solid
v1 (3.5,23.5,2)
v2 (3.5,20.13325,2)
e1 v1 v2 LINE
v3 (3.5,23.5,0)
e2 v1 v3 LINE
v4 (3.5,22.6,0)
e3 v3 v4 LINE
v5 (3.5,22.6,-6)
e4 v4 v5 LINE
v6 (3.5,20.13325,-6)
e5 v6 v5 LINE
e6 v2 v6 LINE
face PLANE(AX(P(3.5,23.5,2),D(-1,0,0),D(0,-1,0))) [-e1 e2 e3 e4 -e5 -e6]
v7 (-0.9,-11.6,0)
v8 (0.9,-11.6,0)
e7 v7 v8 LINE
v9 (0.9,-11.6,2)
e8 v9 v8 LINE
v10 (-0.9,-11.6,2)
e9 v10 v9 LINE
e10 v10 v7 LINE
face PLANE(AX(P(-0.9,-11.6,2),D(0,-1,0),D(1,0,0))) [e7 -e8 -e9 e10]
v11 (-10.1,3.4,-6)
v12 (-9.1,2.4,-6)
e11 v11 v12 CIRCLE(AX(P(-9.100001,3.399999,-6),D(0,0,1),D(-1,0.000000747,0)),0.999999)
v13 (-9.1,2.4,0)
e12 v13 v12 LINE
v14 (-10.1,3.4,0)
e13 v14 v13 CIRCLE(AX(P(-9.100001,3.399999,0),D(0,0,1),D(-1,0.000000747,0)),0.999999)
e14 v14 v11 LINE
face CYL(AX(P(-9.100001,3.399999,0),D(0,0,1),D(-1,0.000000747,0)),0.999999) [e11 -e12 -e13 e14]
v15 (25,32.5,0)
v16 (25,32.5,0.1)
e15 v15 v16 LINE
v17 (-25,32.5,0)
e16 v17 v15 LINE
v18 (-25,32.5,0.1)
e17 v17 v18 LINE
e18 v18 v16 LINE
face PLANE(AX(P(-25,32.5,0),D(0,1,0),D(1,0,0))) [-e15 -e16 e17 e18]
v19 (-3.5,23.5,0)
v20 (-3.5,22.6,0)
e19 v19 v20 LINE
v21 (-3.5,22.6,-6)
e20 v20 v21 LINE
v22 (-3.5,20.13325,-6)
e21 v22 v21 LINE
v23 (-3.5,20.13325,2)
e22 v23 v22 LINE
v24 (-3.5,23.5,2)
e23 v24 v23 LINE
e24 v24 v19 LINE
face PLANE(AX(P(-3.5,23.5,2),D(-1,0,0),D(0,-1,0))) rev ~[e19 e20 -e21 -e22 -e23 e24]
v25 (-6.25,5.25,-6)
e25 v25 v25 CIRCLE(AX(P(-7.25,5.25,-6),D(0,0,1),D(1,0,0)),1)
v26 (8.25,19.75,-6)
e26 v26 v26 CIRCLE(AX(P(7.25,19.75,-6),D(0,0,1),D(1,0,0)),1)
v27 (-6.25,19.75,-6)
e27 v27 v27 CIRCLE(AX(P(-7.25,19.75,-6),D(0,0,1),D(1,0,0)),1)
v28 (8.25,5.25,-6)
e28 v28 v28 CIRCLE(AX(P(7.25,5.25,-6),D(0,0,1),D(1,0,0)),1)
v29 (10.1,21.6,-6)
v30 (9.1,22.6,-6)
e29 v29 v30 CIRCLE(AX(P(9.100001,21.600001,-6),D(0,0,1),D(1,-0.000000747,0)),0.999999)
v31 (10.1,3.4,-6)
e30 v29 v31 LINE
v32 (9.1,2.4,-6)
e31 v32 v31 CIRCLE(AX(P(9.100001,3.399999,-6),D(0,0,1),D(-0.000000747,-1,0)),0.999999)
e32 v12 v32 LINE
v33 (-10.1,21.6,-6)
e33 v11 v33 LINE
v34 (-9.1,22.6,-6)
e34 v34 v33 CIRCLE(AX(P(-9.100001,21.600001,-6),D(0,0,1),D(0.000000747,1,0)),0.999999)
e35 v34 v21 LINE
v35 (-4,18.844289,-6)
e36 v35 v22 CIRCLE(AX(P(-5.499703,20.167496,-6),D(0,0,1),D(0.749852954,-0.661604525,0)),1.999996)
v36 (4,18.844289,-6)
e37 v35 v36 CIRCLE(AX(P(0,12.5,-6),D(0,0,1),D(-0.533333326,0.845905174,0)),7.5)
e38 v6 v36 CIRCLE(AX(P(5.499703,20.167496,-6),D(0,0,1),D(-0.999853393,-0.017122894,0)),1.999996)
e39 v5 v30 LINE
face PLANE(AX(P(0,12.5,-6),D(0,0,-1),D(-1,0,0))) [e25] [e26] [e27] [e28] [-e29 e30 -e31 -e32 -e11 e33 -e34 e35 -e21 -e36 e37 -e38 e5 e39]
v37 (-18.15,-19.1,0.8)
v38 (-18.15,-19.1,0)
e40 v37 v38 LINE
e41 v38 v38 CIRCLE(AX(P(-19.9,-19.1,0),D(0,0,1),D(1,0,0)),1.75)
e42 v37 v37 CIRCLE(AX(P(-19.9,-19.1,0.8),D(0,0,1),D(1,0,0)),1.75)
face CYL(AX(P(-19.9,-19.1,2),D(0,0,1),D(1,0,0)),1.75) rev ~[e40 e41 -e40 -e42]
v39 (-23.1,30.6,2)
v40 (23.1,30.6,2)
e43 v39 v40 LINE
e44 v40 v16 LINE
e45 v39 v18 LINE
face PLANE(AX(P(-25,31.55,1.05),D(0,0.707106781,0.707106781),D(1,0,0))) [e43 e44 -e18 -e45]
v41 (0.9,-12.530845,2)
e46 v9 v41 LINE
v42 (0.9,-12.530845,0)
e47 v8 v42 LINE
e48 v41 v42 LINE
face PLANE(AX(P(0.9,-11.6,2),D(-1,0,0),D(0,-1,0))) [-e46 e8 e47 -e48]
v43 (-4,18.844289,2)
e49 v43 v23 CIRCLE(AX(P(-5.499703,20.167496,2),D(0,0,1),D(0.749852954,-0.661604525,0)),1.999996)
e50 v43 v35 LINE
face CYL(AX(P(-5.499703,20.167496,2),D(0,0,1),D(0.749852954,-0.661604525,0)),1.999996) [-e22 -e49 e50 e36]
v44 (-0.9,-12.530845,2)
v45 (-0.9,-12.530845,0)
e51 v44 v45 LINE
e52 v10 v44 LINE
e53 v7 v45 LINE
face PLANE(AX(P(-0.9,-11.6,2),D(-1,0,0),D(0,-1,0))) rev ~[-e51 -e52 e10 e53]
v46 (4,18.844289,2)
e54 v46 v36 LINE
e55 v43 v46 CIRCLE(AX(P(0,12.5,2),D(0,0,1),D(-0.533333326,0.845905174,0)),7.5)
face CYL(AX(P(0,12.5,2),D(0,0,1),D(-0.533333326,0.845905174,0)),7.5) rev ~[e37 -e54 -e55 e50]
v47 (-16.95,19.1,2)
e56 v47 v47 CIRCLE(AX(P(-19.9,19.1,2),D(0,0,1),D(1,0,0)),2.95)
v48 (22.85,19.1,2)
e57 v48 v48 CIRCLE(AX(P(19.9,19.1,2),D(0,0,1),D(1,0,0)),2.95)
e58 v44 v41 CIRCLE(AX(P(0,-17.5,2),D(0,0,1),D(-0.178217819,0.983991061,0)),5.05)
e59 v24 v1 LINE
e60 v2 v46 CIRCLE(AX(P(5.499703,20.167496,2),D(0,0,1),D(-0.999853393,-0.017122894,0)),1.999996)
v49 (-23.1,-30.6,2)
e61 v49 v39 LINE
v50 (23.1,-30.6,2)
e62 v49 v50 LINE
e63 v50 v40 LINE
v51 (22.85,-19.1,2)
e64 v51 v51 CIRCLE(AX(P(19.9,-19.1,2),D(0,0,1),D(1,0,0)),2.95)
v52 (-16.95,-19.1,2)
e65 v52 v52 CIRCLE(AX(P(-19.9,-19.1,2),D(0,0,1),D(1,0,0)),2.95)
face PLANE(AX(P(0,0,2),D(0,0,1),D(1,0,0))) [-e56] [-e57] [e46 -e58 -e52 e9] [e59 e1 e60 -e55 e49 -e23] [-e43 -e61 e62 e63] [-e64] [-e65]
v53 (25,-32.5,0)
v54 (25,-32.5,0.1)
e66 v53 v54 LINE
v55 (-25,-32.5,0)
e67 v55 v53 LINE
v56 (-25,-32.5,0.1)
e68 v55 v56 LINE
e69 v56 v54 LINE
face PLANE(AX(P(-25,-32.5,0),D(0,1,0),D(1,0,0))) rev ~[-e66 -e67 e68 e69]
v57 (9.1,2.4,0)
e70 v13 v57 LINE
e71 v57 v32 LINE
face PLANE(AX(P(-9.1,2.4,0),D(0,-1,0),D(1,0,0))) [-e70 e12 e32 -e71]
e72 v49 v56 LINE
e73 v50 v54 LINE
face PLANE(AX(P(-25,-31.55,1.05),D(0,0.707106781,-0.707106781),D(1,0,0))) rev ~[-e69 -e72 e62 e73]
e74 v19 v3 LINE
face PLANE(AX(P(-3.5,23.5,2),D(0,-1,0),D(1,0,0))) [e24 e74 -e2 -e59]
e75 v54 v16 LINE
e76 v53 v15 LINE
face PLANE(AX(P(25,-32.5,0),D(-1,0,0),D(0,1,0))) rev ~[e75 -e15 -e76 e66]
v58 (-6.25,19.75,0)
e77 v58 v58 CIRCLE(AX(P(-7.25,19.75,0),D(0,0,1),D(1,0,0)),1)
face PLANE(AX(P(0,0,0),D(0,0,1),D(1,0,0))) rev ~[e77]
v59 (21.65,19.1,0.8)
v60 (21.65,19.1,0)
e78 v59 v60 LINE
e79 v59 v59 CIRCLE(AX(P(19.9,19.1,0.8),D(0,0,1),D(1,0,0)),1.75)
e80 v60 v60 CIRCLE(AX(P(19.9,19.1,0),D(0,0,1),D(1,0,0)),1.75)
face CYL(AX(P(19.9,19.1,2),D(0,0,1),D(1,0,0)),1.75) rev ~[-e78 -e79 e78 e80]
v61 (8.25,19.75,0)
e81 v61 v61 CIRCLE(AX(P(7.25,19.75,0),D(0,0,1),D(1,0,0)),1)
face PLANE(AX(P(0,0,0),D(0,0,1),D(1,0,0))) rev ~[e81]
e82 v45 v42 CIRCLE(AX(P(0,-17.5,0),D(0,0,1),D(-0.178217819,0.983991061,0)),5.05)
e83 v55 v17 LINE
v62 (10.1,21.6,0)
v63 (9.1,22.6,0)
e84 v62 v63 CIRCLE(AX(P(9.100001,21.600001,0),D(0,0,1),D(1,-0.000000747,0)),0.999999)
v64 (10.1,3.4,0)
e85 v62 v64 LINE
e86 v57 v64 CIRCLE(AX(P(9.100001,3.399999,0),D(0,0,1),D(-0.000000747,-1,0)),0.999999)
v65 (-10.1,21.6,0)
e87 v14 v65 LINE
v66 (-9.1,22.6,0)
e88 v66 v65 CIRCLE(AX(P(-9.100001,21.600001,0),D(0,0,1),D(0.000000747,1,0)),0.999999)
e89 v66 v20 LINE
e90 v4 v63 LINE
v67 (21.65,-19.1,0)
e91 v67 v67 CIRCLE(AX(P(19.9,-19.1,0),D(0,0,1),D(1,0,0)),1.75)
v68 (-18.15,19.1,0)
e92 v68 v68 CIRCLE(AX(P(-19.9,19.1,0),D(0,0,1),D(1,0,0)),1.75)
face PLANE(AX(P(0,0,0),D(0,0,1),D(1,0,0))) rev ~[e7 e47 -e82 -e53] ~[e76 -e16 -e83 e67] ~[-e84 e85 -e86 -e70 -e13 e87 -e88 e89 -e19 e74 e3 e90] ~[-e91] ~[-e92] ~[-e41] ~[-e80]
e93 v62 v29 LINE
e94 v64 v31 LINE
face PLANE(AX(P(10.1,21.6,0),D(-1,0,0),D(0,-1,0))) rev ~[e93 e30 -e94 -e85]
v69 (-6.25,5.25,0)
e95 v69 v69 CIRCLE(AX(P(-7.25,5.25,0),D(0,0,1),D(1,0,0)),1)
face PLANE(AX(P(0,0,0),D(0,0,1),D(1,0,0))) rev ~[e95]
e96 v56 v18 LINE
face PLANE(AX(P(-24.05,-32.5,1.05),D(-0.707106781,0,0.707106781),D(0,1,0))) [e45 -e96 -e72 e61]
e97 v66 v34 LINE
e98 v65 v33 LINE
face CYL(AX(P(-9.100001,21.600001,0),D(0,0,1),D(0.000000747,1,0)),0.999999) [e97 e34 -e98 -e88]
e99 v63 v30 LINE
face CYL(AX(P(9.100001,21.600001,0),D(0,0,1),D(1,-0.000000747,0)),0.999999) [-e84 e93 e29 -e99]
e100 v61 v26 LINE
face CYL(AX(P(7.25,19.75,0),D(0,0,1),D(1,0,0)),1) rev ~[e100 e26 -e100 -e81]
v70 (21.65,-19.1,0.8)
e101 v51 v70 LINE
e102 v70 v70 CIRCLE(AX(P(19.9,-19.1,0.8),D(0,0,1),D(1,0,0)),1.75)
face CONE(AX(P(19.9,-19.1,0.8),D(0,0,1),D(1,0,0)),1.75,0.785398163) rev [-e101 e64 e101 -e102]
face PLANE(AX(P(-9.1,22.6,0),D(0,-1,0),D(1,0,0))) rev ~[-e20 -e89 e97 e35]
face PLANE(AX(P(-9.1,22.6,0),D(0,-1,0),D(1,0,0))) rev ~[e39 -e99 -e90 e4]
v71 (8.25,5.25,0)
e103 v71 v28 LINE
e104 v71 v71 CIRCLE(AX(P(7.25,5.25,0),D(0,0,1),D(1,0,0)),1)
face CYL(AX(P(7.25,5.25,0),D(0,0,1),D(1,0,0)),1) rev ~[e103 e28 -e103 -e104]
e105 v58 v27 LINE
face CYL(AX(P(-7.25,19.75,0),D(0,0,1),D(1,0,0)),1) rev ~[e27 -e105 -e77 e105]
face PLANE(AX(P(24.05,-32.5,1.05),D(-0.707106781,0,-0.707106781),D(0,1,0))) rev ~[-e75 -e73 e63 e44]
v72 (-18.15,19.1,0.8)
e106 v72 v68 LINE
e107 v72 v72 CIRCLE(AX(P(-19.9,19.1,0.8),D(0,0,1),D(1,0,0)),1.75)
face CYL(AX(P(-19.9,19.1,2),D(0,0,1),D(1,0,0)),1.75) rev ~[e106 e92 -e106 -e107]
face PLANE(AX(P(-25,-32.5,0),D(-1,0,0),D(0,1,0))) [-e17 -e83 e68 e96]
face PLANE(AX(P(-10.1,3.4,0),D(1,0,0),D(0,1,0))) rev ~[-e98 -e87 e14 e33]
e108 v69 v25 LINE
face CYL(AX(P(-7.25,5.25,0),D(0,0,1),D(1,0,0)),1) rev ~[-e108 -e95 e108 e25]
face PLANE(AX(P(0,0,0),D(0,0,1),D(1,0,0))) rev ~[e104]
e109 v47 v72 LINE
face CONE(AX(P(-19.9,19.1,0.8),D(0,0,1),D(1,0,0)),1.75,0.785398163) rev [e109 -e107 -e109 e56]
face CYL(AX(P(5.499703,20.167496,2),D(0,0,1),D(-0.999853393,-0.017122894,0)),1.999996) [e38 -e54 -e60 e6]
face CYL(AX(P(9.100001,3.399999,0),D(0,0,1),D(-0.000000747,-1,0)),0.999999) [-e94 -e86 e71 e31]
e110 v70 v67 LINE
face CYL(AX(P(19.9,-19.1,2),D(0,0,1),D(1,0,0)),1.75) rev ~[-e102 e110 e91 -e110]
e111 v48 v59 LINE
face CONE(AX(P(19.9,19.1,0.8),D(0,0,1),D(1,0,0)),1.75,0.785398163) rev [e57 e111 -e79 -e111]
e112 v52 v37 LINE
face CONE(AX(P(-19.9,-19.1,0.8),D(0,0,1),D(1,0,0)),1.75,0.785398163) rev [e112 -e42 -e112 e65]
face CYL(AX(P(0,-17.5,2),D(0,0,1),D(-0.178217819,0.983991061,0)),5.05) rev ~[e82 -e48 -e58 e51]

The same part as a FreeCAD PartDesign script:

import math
import FreeCAD as App
import Part
import Sketcher


def edges_at(feature, points):
    """Names of the edges that pass closest to the given points."""
    edges = feature.Shape.Edges
    near = lambda p: min(range(len(edges)), key=lambda i: edges[i].distToShape(Part.Vertex(*p))[0])
    return sorted({f"Edge{near(p) + 1}" for p in points})

doc = App.newDocument("Part")
body = doc.addObject("PartDesign::Body", "Body")

# Sketch on XY plane
sketch1 = doc.addObject("Sketcher::SketchObject", "Sketch")
body.addObject(sketch1)
sketch1.AttachmentSupport = (doc.XY_Plane, [""])
sketch1.MapMode = "FlatFace"
sketch1.addGeometry([
    Part.LineSegment(App.Vector(-25, 32.5, 0), App.Vector(-25, -32.5, 0)),
    Part.LineSegment(App.Vector(-25, -32.5, 0), App.Vector(25, -32.5, 0)),
    Part.LineSegment(App.Vector(25, -32.5, 0), App.Vector(25, 32.5, 0)),
    Part.LineSegment(App.Vector(25, 32.5, 0), App.Vector(-25, 32.5, 0)),
], False)
sketch1.addConstraint([
    Sketcher.Constraint("Coincident", 0, 2, 1, 1),
    Sketcher.Constraint("Coincident", 1, 2, 2, 1),
    Sketcher.Constraint("Coincident", 2, 2, 3, 1),
    Sketcher.Constraint("Coincident", 3, 2, 0, 1),
    Sketcher.Constraint("Vertical", 0),
    Sketcher.Constraint("Horizontal", 1),
    Sketcher.Constraint("Vertical", 2),
    Sketcher.Constraint("Horizontal", 3),
    Sketcher.Constraint("Symmetric", 0, 2, 2, 2, -1, 1),
    Sketcher.Constraint("DistanceX", 1, 1, 1, 2, 50.0),
    Sketcher.Constraint("DistanceY", 0, 2, 0, 1, 65.0),
])
pad1 = doc.addObject("PartDesign::Pad", "Pad")
body.addObject(pad1)
pad1.Profile = sketch1
pad1.Length = 2

# Sketch on XY plane
sketch2 = doc.addObject("Sketcher::SketchObject", "Sketch001")
body.addObject(sketch2)
sketch2.AttachmentSupport = (doc.XY_Plane, [""])
sketch2.MapMode = "FlatFace"
sketch2.addGeometry([
    Part.LineSegment(App.Vector(-10.1, 21.6, 0), App.Vector(-10.1, 3.4, 0)),  # 0
    Part.ArcOfCircle(Part.Circle(App.Vector(-9.100001, 3.399999, 0), App.Vector(0, 0, 1), 0.999999), math.radians(179.999957), math.radians(270.000043)),  # 1
    Part.LineSegment(App.Vector(-9.1, 2.4, 0), App.Vector(9.1, 2.4, 0)),  # 2
    Part.ArcOfCircle(Part.Circle(App.Vector(9.100001, 3.399999, 0), App.Vector(0, 0, 1), 0.999999), math.radians(-90.000043), math.radians(0.000043)),  # 3
    Part.LineSegment(App.Vector(10.1, 3.4, 0), App.Vector(10.1, 21.6, 0)),  # 4
    Part.ArcOfCircle(Part.Circle(App.Vector(9.100001, 21.600001, 0), App.Vector(0, 0, 1), 0.999999), math.radians(-0.000043), math.radians(90.000043)),  # 5
    Part.LineSegment(App.Vector(9.1, 22.6, 0), App.Vector(-9.1, 22.6, 0)),  # 6
    Part.ArcOfCircle(Part.Circle(App.Vector(-9.100001, 21.600001, 0), App.Vector(0, 0, 1), 0.999999), math.radians(89.999957), math.radians(180.000043)),  # 7
    Part.Circle(App.Vector(7.25, 5.25, 0), App.Vector(0, 0, 1), 1),  # 8
    Part.Circle(App.Vector(-7.25, 5.25, 0), App.Vector(0, 0, 1), 1),  # 9
    Part.Circle(App.Vector(7.25, 19.75, 0), App.Vector(0, 0, 1), 1),  # 10
    Part.Circle(App.Vector(-7.25, 19.75, 0), App.Vector(0, 0, 1), 1),  # 11
], False)
sketch2.addConstraint([
    Sketcher.Constraint("Tangent", 0, 2, 1, 1),
    Sketcher.Constraint("Tangent", 1, 2, 2, 1),
    Sketcher.Constraint("Tangent", 2, 2, 3, 1),
    Sketcher.Constraint("Tangent", 3, 2, 4, 1),
    Sketcher.Constraint("Tangent", 4, 2, 5, 1),
    Sketcher.Constraint("Tangent", 5, 2, 6, 1),
    Sketcher.Constraint("Tangent", 6, 2, 7, 1),
    Sketcher.Constraint("Tangent", 7, 2, 0, 1),
    Sketcher.Constraint("Vertical", 0),
    Sketcher.Constraint("Horizontal", 2),
    Sketcher.Constraint("Vertical", 4),
    Sketcher.Constraint("Horizontal", 6),
    Sketcher.Constraint("Equal", 1, 3),
    Sketcher.Constraint("Equal", 3, 5),
    Sketcher.Constraint("Equal", 5, 7),
    Sketcher.Constraint("Equal", 7, 8),
    Sketcher.Constraint("Equal", 8, 9),
    Sketcher.Constraint("Equal", 9, 10),
    Sketcher.Constraint("Equal", 10, 11),
    Sketcher.Constraint("Symmetric", 8, 3, 9, 3, -2),
    Sketcher.Constraint("Symmetric", 10, 3, 11, 3, -2),
    Sketcher.Constraint("Vertical", 8, 3, 10, 3),
    Sketcher.Constraint("Equal", 6, 0),
    Sketcher.Constraint("Diameter", 8, 2.0),
    Sketcher.Constraint("DistanceX", 2, 1, 2, 2, 18.2),
    Sketcher.Constraint("DistanceX", 1, 3, -1, 1, 9.100001),
    Sketcher.Constraint("DistanceY", -1, 1, 1, 3, 3.399999),
    Sketcher.Constraint("DistanceX", 9, 3, 8, 3, 14.5),
    Sketcher.Constraint("DistanceY", 8, 3, 10, 3, 14.5),
    Sketcher.Constraint("DistanceY", -1, 1, 8, 3, 5.25),
])
pad2 = doc.addObject("PartDesign::Pad", "Pad001")
body.addObject(pad2)
pad2.Profile = sketch2
pad2.Length = 6
pad2.Reversed = True

# Sketch on XY plane
sketch3 = doc.addObject("Sketcher::SketchObject", "Sketch002")
body.addObject(sketch3)
sketch3.AttachmentSupport = (doc.XY_Plane, [""])
sketch3.MapMode = "FlatFace"
sketch3.AttachmentOffset = App.Placement(App.Vector(0, 0, 2), App.Rotation())
sketch3.addGeometry([
    Part.ArcOfCircle(Part.Circle(App.Vector(0, 12.5, 0), App.Vector(0, 0, 1), 7.5), math.radians(122.230952), math.radians(417.769048)),  # 0
    Part.ArcOfCircle(Part.Circle(App.Vector(5.499703, 20.167496, 0), App.Vector(0, 0, 1), 1.999996), math.radians(-179.018882), math.radians(-138.577642)),  # 1
    Part.LineSegment(App.Vector(3.5, 20.13325, 0), App.Vector(3.5, 23.5, 0)),  # 2
    Part.LineSegment(App.Vector(3.5, 23.5, 0), App.Vector(-3.5, 23.5, 0)),  # 3
    Part.LineSegment(App.Vector(-3.5, 23.5, 0), App.Vector(-3.5, 20.13325, 0)),  # 4
    Part.ArcOfCircle(Part.Circle(App.Vector(-5.499703, 20.167496, 0), App.Vector(0, 0, 1), 1.999996), math.radians(-41.422358), math.radians(-0.981118)),  # 5
    Part.ArcOfCircle(Part.Circle(App.Vector(0, -17.5, 0), App.Vector(0, 0, 1), 5.05), math.radians(100.26597), math.radians(439.73403)),  # 6
    Part.LineSegment(App.Vector(0.9, -12.530845, 0), App.Vector(0.9, -11.6, 0)),  # 7
    Part.LineSegment(App.Vector(0.9, -11.6, 0), App.Vector(-0.9, -11.6, 0)),  # 8
    Part.LineSegment(App.Vector(-0.9, -11.6, 0), App.Vector(-0.9, -12.530845, 0)),  # 9
], False)
sketch3.addConstraint([
    Sketcher.Constraint("Coincident", 0, 2, 1, 2),
    Sketcher.Constraint("Coincident", 1, 1, 2, 1),
    Sketcher.Constraint("Coincident", 2, 2, 3, 1),
    Sketcher.Constraint("Coincident", 3, 2, 4, 1),
    Sketcher.Constraint("Coincident", 4, 2, 5, 2),
    Sketcher.Constraint("Coincident", 5, 1, 0, 1),
    Sketcher.Constraint("Coincident", 6, 2, 7, 1),
    Sketcher.Constraint("Coincident", 7, 2, 8, 1),
    Sketcher.Constraint("Coincident", 8, 2, 9, 1),
    Sketcher.Constraint("Coincident", 9, 2, 6, 1),
    Sketcher.Constraint("Vertical", 2),
    Sketcher.Constraint("Horizontal", 3),
    Sketcher.Constraint("Vertical", 4),
    Sketcher.Constraint("Vertical", 7),
    Sketcher.Constraint("Horizontal", 8),
    Sketcher.Constraint("Vertical", 9),
    Sketcher.Constraint("Equal", 1, 5),
    Sketcher.Constraint("Symmetric", 1, 3, 5, 3, -2),
    Sketcher.Constraint("Symmetric", 6, 2, 9, 2, -2),
    Sketcher.Constraint("PointOnObject", 0, 3, -2),
    Sketcher.Constraint("Horizontal", 1, 1, 4, 2),
    Sketcher.Constraint("Radius", 0, 7.5),
    Sketcher.Constraint("DistanceX", 3, 2, 3, 1, 7.0),
    Sketcher.Constraint("Radius", 6, 5.05),
    Sketcher.Constraint("DistanceX", 8, 2, 8, 1, 1.8),
    Sketcher.Constraint("DistanceX", -1, 1, 0, 2, 4.0),
    Sketcher.Constraint("DistanceY", 6, 3, 0, 3, 30.0),
    Sketcher.Constraint("DistanceY", 0, 3, 2, 2, 11.0),
    Sketcher.Constraint("DistanceY", -1, 1, 0, 3, 12.5),
    Sketcher.Constraint("DistanceY", 7, 2, -1, 1, 11.6),
    Sketcher.Constraint("Radius", 1, 1.999996),
    Sketcher.Constraint("DistanceY", 2, 1, 2, 2, 3.36675),
])
pocket1 = doc.addObject("PartDesign::Pocket", "Pocket")
body.addObject(pocket1)
pocket1.Profile = sketch3
pocket1.Type = "ThroughAll"

# Sketch on XY plane
sketch4 = doc.addObject("Sketcher::SketchObject", "Sketch003")
body.addObject(sketch4)
sketch4.AttachmentSupport = (doc.XY_Plane, [""])
sketch4.MapMode = "FlatFace"
sketch4.AttachmentOffset = App.Placement(App.Vector(0, 0, 2), App.Rotation())
sketch4.addGeometry([
    Part.Circle(App.Vector(-19.9, 19.1, 0), App.Vector(0, 0, 1), 1.75),
    Part.Circle(App.Vector(19.9, 19.1, 0), App.Vector(0, 0, 1), 1.75),
    Part.Circle(App.Vector(19.9, -19.1, 0), App.Vector(0, 0, 1), 1.75),
    Part.Circle(App.Vector(-19.9, -19.1, 0), App.Vector(0, 0, 1), 1.75),
], False)
sketch4.addConstraint([
    Sketcher.Constraint("Equal", 0, 1),
    Sketcher.Constraint("Equal", 1, 2),
    Sketcher.Constraint("Equal", 2, 3),
    Sketcher.Constraint("Symmetric", 0, 3, 2, 3, -1, 1),
    Sketcher.Constraint("Symmetric", 1, 3, 3, 3, -1, 1),
    Sketcher.Constraint("Symmetric", 0, 3, 1, 3, -2),
    Sketcher.Constraint("Diameter", 0, 3.5),
    Sketcher.Constraint("DistanceX", 0, 3, -1, 1, 19.9),
    Sketcher.Constraint("DistanceY", -1, 1, 0, 3, 19.1),
])
pocket2 = doc.addObject("PartDesign::Pocket", "Pocket001")
body.addObject(pocket2)
pocket2.Profile = sketch4
pocket2.Length = 2
doc.recompute()

chamfer = doc.addObject("PartDesign::Chamfer", "Chamfer")
body.addObject(chamfer)
chamfer.Base = (pocket2, edges_at(pocket2, [
    (-21.65, 19.1, 2),
    (18.15, 19.1, 2),
    (18.15, -19.1, 2),
    (-21.65, -19.1, 2),
]))
chamfer.Size = 1.2
doc.recompute()

chamfer2 = doc.addObject("PartDesign::Chamfer", "Chamfer001")
body.addObject(chamfer2)
chamfer2.Base = (chamfer, edges_at(chamfer, [
    (-25, 0, 2),
    (0, 32.5, 2),
    (25, 0, 2),
    (0, -32.5, 2),
]))
chamfer2.Size = 1.9

doc.recompute()
